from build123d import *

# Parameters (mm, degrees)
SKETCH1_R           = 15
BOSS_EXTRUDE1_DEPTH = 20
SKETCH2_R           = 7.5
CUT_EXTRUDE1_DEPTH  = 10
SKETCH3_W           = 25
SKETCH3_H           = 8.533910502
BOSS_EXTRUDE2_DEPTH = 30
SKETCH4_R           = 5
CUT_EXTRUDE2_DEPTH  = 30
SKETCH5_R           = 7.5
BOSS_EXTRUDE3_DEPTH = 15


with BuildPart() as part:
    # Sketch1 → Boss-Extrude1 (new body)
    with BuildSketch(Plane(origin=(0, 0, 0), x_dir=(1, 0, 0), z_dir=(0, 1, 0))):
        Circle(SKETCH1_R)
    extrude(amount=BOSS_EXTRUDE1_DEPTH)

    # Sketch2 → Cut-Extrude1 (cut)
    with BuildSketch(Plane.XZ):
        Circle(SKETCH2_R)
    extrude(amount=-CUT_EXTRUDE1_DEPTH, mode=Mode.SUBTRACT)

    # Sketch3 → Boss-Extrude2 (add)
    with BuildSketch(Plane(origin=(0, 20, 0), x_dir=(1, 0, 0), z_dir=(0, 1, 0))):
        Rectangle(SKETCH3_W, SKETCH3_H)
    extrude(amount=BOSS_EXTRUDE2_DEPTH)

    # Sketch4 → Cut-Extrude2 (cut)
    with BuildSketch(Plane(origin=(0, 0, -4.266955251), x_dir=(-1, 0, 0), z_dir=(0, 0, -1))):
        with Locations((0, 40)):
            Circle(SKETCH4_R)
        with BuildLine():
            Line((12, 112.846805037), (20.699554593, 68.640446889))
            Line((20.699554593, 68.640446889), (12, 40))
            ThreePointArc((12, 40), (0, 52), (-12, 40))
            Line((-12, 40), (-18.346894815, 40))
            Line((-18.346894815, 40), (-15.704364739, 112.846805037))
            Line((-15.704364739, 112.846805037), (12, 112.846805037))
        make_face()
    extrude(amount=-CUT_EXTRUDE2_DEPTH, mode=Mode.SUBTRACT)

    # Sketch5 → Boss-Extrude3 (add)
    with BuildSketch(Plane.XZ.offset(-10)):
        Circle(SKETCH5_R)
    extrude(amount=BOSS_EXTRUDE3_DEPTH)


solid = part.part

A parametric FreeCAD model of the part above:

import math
import FreeCAD as App
import Part
import Sketcher
from FreeCAD import Vector
Q = App.Units.Quantity


def add_polygon(sketch, points):
    """Adds a closed chain of lines whose ends are joined by coincident constraints."""
    first, n = sketch.GeometryCount, len(points)
    for a, b in zip(points, points[1:] + points[:1]):
        sketch.addGeometry(Part.LineSegment(App.Vector(*a, 0), App.Vector(*b, 0)), False)
    for i in range(n):
        sketch.addConstraint(Sketcher.Constraint("Coincident", first + i, 2, first + (i + 1) % n, 1))

doc = App.newDocument("Part")
body = doc.addObject("PartDesign::Body", "Body")

# Sketch on XZ plane
sketch1 = body.newObject("Sketcher::SketchObject", "Sketch")
sketch1.AttachmentSupport = (doc.getObject("XZ_Plane"), [""])
sketch1.MapMode = "FlatFace"
sketch1.addGeometry(Part.Circle(Vector(0, 0, 0), Vector(0, 0, 1), 15), False)
sketch1.addConstraint(Sketcher.Constraint("Coincident", 0, 3, -1, 1))
sketch1.addConstraint(Sketcher.Constraint("Diameter", 0, Q("30 mm")))
pad1 = body.newObject("PartDesign::Pad", "Pad")
pad1.Profile = sketch1
pad1.Length = 20
pad1.Reversed = True

# Sketch on XZ plane
sketch2 = body.newObject("Sketcher::SketchObject", "Sketch001")
sketch2.AttachmentSupport = (doc.getObject("XZ_Plane"), [""])
sketch2.MapMode = "FlatFace"
sketch2.addGeometry(Part.Circle(Vector(0, 0, 0), Vector(0, 0, 1), 8), False)
sketch2.addConstraint(Sketcher.Constraint("Coincident", 0, 3, -1, 1))
sketch2.addConstraint(Sketcher.Constraint("Diameter", 0, Q("15 mm")))
pocket1 = body.newObject("PartDesign::Pocket", "Pocket")
pocket1.Profile = sketch2
pocket1.Length = 10

# Sketch on XZ plane
sketch3 = body.newObject("Sketcher::SketchObject", "Sketch002")
sketch3.AttachmentSupport = (doc.getObject("XZ_Plane"), [""])
sketch3.MapMode = "FlatFace"
sketch3.AttachmentOffset = App.Placement(Vector(0, 0, -20), App.Rotation())
add_polygon(sketch3, [(-12, -4), (-12, 4), (12, 4), (12, -4)])  # lines 0-3
sketch3.addConstraint(Sketcher.Constraint("Vertical", 0))
sketch3.addConstraint(Sketcher.Constraint("Horizontal", 1))
sketch3.addConstraint(Sketcher.Constraint("Vertical", 2))
sketch3.addConstraint(Sketcher.Constraint("Horizontal", 3))
sketch3.addConstraint(Sketcher.Constraint("Symmetric", 0, 2, 2, 2, -1, 1))
sketch3.addConstraint(Sketcher.Constraint("DistanceX", 1, 1, 1, 2, Q("25 mm")))
sketch3.addConstraint(Sketcher.Constraint("DistanceY", 0, 1, 0, 2, Q("8.533911 mm")))
pad2 = body.newObject("PartDesign::Pad", "Pad001")
pad2.Profile = sketch3
pad2.Length = 30
pad2.Reversed = True

# Sketch on XY plane
sketch4 = body.newObject("Sketcher::SketchObject", "Sketch003")
sketch4.AttachmentSupport = (doc.getObject("XY_Plane"), [""])
sketch4.MapMode = "FlatFace"
sketch4.AttachmentOffset = App.Placement(Vector(0, 0, -4.266955), App.Rotation())
sketch4.addGeometry(Part.Circle(Vector(0, 40, 0), Vector(0, 0, 1), 5), False)
sketch4.addGeometry(Part.LineSegment(Vector(-21, 69, 0), Vector(-12, 113, 0)), False)
sketch4.addGeometry(Part.LineSegment(Vector(-12, 113, 0), Vector(16, 113, 0)), False)
sketch4.addGeometry(Part.LineSegment(Vector(16, 113, 0), Vector(18, 40, 0)), False)
sketch4.addGeometry(Part.LineSegment(Vector(18, 40, 0), Vector(12, 40, 0)), False)
sketch4.addGeometry(Part.ArcOfCircle(Part.Circle(Vector(0, 40, 0), Vector(0, 0, 1), 12), math.radians(0), math.radians(180)), False)
sketch4.addGeometry(Part.LineSegment(Vector(-12, 40, 0), Vector(-21, 69, 0)), False)
sketch4.addConstraint(Sketcher.Constraint("Coincident", 1, 2, 2, 1))
sketch4.addConstraint(Sketcher.Constraint("Coincident", 2, 2, 3, 1))
sketch4.addConstraint(Sketcher.Constraint("Coincident", 3, 2, 4, 1))
sketch4.addConstraint(Sketcher.Constraint("Coincident", 4, 2, 5, 1))
sketch4.addConstraint(Sketcher.Constraint("Coincident", 5, 2, 6, 1))
sketch4.addConstraint(Sketcher.Constraint("Coincident", 6, 2, 1, 1))
sketch4.addConstraint(Sketcher.Constraint("Horizontal", 2))
sketch4.addConstraint(Sketcher.Constraint("Horizontal", 4))
sketch4.addConstraint(Sketcher.Constraint("Coincident", 5, 3, 0, 3))
sketch4.addConstraint(Sketcher.Constraint("Symmetric", 4, 2, 5, 2, -2))
sketch4.addConstraint(Sketcher.Constraint("Horizontal", 5, 3, 3, 2))
sketch4.addConstraint(Sketcher.Constraint("Vertical", 1, 2, 5, 2))
sketch4.addConstraint(Sketcher.Constraint("Diameter", 0, Q("10 mm")))
sketch4.addConstraint(Sketcher.Constraint("Radius", 5, Q("12 mm")))
sketch4.addConstraint(Sketcher.Constraint("DistanceY", -1, 1, 0, 3, Q("40 mm")))
sketch4.addConstraint(Sketcher.Constraint("Distance", 3, Q("72.894718 mm")))
sketch4.addConstraint(Sketcher.Constraint("Distance", 6, Q("29.932548 mm")))
sketch4.addConstraint(Sketcher.Constraint("DistanceX", 2, 1, 2, 2, Q("27.704365 mm")))
sketch4.addConstraint(Sketcher.Constraint("DistanceX", 4, 2, 4, 1, Q("6.346895 mm")))
sketch4.addConstraint(Sketcher.Constraint("DistanceY", 6, 2, 1, 2, Q("44.206358 mm")))
pocket2 = body.newObject("PartDesign::Pocket", "Pocket001")
pocket2.Profile = sketch4
pocket2.Length = 30
pocket2.Reversed = True

# Sketch on XZ plane
sketch5 = body.newObject("Sketcher::SketchObject", "Sketch004")
sketch5.AttachmentSupport = (doc.getObject("XZ_Plane"), [""])
sketch5.MapMode = "FlatFace"
sketch5.AttachmentOffset = App.Placement(Vector(0, 0, -10), App.Rotation())
sketch5.addGeometry(Part.Circle(Vector(0, 0, 0), Vector(0, 0, 1), 8), False)
sketch5.addConstraint(Sketcher.Constraint("Coincident", 0, 3, -1, 1))
sketch5.addConstraint(Sketcher.Constraint("Diameter", 0, Q("15 mm")))
pad3 = body.newObject("PartDesign::Pad", "Pad002")
pad3.Profile = sketch5
pad3.Length = 15

doc.recompute()
